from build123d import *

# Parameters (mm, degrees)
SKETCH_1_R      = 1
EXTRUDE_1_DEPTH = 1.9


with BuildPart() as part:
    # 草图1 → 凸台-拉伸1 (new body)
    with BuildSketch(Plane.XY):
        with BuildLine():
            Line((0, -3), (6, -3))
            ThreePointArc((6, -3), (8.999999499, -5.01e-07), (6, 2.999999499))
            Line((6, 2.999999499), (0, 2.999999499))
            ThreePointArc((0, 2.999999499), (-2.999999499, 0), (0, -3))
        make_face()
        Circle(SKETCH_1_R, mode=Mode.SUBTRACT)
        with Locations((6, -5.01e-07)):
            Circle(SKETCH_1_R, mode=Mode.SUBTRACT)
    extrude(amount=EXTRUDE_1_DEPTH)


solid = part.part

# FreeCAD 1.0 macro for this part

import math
import FreeCAD as App
import Part
import Sketcher

V = App.Vector

doc = App.newDocument("Part")
params = doc.addObject("Spreadsheet::Sheet", "Params")
for row, (alias, value) in enumerate([
    ("sketch1_diameter", "2 mm"),
    ("sketch1_radius", "3 mm"),
    ("sketch1_width", "6 mm"),
    ("pad1_length", "1.9 mm"),
], start=1):
    params.set(f"A{row}", alias)
    params.set(f"B{row}", "=" + value)
    params.setAlias(f"B{row}", alias)

body = doc.addObject("PartDesign::Body", "Body")

# Sketch on XY plane
sketch1 = body.newObject("Sketcher::SketchObject", "Sketch")
sketch1.AttachmentSupport = (doc.getObject("XY_Plane"), [""])
sketch1.MapMode = "FlatFace"
sketch1.addGeometry([
    Part.LineSegment(V(0, -3, 0), V(6, -3, 0)),  # 0
    Part.ArcOfCircle(Part.Circle(V(6, 0, 0), V(0, 0, 1), 3), math.radians(-89.999995), math.radians(89.999995)),  # 1
    Part.LineSegment(V(6, 2.999999, 0), V(0, 2.999999, 0)),  # 2
    Part.ArcOfCircle(Part.Circle(V(0, 0, 0), V(0, 0, 1), 3), math.radians(90.000005), math.radians(269.999995)),  # 3
    Part.Circle(V(6, -0.000001, 0), V(0, 0, 1), 1),  # 4
    Part.Circle(V(0, 0, 0), V(0, 0, 1), 1),  # 5
], False)
sketch1.addConstraint([
    Sketcher.Constraint("Tangent", 0, 2, 1, 1),
    Sketcher.Constraint("Tangent", 1, 2, 2, 1),
    Sketcher.Constraint("Tangent", 2, 2, 3, 1),
    Sketcher.Constraint("Tangent", 3, 2, 0, 1),
    Sketcher.Constraint("Horizontal", 0),
    Sketcher.Constraint("Horizontal", 2),
    Sketcher.Constraint("Coincident", 3, 3, -1, 1),
    Sketcher.Constraint("Coincident", 5, 3, -1, 1),
    Sketcher.Constraint("Coincident", 4, 3, 1, 3),
    Sketcher.Constraint("Equal", 4, 5),
    Sketcher.Constraint("Diameter", 4, 2.0),
    Sketcher.Constraint("Radius", 1, 3.0),
    Sketcher.Constraint("DistanceX", 0, 1, 0, 2, 6.0),
])
sketch1.setExpression("Constraints[10]", "Params.sketch1_diameter")
sketch1.setExpression("Constraints[11]", "Params.sketch1_radius")
sketch1.setExpression("Constraints[12]", "Params.sketch1_width")
pad1 = body.newObject("PartDesign::Pad", "Pad")
pad1.Profile = sketch1
pad1.setExpression("Length", "Params.pad1_length")

doc.recompute()
